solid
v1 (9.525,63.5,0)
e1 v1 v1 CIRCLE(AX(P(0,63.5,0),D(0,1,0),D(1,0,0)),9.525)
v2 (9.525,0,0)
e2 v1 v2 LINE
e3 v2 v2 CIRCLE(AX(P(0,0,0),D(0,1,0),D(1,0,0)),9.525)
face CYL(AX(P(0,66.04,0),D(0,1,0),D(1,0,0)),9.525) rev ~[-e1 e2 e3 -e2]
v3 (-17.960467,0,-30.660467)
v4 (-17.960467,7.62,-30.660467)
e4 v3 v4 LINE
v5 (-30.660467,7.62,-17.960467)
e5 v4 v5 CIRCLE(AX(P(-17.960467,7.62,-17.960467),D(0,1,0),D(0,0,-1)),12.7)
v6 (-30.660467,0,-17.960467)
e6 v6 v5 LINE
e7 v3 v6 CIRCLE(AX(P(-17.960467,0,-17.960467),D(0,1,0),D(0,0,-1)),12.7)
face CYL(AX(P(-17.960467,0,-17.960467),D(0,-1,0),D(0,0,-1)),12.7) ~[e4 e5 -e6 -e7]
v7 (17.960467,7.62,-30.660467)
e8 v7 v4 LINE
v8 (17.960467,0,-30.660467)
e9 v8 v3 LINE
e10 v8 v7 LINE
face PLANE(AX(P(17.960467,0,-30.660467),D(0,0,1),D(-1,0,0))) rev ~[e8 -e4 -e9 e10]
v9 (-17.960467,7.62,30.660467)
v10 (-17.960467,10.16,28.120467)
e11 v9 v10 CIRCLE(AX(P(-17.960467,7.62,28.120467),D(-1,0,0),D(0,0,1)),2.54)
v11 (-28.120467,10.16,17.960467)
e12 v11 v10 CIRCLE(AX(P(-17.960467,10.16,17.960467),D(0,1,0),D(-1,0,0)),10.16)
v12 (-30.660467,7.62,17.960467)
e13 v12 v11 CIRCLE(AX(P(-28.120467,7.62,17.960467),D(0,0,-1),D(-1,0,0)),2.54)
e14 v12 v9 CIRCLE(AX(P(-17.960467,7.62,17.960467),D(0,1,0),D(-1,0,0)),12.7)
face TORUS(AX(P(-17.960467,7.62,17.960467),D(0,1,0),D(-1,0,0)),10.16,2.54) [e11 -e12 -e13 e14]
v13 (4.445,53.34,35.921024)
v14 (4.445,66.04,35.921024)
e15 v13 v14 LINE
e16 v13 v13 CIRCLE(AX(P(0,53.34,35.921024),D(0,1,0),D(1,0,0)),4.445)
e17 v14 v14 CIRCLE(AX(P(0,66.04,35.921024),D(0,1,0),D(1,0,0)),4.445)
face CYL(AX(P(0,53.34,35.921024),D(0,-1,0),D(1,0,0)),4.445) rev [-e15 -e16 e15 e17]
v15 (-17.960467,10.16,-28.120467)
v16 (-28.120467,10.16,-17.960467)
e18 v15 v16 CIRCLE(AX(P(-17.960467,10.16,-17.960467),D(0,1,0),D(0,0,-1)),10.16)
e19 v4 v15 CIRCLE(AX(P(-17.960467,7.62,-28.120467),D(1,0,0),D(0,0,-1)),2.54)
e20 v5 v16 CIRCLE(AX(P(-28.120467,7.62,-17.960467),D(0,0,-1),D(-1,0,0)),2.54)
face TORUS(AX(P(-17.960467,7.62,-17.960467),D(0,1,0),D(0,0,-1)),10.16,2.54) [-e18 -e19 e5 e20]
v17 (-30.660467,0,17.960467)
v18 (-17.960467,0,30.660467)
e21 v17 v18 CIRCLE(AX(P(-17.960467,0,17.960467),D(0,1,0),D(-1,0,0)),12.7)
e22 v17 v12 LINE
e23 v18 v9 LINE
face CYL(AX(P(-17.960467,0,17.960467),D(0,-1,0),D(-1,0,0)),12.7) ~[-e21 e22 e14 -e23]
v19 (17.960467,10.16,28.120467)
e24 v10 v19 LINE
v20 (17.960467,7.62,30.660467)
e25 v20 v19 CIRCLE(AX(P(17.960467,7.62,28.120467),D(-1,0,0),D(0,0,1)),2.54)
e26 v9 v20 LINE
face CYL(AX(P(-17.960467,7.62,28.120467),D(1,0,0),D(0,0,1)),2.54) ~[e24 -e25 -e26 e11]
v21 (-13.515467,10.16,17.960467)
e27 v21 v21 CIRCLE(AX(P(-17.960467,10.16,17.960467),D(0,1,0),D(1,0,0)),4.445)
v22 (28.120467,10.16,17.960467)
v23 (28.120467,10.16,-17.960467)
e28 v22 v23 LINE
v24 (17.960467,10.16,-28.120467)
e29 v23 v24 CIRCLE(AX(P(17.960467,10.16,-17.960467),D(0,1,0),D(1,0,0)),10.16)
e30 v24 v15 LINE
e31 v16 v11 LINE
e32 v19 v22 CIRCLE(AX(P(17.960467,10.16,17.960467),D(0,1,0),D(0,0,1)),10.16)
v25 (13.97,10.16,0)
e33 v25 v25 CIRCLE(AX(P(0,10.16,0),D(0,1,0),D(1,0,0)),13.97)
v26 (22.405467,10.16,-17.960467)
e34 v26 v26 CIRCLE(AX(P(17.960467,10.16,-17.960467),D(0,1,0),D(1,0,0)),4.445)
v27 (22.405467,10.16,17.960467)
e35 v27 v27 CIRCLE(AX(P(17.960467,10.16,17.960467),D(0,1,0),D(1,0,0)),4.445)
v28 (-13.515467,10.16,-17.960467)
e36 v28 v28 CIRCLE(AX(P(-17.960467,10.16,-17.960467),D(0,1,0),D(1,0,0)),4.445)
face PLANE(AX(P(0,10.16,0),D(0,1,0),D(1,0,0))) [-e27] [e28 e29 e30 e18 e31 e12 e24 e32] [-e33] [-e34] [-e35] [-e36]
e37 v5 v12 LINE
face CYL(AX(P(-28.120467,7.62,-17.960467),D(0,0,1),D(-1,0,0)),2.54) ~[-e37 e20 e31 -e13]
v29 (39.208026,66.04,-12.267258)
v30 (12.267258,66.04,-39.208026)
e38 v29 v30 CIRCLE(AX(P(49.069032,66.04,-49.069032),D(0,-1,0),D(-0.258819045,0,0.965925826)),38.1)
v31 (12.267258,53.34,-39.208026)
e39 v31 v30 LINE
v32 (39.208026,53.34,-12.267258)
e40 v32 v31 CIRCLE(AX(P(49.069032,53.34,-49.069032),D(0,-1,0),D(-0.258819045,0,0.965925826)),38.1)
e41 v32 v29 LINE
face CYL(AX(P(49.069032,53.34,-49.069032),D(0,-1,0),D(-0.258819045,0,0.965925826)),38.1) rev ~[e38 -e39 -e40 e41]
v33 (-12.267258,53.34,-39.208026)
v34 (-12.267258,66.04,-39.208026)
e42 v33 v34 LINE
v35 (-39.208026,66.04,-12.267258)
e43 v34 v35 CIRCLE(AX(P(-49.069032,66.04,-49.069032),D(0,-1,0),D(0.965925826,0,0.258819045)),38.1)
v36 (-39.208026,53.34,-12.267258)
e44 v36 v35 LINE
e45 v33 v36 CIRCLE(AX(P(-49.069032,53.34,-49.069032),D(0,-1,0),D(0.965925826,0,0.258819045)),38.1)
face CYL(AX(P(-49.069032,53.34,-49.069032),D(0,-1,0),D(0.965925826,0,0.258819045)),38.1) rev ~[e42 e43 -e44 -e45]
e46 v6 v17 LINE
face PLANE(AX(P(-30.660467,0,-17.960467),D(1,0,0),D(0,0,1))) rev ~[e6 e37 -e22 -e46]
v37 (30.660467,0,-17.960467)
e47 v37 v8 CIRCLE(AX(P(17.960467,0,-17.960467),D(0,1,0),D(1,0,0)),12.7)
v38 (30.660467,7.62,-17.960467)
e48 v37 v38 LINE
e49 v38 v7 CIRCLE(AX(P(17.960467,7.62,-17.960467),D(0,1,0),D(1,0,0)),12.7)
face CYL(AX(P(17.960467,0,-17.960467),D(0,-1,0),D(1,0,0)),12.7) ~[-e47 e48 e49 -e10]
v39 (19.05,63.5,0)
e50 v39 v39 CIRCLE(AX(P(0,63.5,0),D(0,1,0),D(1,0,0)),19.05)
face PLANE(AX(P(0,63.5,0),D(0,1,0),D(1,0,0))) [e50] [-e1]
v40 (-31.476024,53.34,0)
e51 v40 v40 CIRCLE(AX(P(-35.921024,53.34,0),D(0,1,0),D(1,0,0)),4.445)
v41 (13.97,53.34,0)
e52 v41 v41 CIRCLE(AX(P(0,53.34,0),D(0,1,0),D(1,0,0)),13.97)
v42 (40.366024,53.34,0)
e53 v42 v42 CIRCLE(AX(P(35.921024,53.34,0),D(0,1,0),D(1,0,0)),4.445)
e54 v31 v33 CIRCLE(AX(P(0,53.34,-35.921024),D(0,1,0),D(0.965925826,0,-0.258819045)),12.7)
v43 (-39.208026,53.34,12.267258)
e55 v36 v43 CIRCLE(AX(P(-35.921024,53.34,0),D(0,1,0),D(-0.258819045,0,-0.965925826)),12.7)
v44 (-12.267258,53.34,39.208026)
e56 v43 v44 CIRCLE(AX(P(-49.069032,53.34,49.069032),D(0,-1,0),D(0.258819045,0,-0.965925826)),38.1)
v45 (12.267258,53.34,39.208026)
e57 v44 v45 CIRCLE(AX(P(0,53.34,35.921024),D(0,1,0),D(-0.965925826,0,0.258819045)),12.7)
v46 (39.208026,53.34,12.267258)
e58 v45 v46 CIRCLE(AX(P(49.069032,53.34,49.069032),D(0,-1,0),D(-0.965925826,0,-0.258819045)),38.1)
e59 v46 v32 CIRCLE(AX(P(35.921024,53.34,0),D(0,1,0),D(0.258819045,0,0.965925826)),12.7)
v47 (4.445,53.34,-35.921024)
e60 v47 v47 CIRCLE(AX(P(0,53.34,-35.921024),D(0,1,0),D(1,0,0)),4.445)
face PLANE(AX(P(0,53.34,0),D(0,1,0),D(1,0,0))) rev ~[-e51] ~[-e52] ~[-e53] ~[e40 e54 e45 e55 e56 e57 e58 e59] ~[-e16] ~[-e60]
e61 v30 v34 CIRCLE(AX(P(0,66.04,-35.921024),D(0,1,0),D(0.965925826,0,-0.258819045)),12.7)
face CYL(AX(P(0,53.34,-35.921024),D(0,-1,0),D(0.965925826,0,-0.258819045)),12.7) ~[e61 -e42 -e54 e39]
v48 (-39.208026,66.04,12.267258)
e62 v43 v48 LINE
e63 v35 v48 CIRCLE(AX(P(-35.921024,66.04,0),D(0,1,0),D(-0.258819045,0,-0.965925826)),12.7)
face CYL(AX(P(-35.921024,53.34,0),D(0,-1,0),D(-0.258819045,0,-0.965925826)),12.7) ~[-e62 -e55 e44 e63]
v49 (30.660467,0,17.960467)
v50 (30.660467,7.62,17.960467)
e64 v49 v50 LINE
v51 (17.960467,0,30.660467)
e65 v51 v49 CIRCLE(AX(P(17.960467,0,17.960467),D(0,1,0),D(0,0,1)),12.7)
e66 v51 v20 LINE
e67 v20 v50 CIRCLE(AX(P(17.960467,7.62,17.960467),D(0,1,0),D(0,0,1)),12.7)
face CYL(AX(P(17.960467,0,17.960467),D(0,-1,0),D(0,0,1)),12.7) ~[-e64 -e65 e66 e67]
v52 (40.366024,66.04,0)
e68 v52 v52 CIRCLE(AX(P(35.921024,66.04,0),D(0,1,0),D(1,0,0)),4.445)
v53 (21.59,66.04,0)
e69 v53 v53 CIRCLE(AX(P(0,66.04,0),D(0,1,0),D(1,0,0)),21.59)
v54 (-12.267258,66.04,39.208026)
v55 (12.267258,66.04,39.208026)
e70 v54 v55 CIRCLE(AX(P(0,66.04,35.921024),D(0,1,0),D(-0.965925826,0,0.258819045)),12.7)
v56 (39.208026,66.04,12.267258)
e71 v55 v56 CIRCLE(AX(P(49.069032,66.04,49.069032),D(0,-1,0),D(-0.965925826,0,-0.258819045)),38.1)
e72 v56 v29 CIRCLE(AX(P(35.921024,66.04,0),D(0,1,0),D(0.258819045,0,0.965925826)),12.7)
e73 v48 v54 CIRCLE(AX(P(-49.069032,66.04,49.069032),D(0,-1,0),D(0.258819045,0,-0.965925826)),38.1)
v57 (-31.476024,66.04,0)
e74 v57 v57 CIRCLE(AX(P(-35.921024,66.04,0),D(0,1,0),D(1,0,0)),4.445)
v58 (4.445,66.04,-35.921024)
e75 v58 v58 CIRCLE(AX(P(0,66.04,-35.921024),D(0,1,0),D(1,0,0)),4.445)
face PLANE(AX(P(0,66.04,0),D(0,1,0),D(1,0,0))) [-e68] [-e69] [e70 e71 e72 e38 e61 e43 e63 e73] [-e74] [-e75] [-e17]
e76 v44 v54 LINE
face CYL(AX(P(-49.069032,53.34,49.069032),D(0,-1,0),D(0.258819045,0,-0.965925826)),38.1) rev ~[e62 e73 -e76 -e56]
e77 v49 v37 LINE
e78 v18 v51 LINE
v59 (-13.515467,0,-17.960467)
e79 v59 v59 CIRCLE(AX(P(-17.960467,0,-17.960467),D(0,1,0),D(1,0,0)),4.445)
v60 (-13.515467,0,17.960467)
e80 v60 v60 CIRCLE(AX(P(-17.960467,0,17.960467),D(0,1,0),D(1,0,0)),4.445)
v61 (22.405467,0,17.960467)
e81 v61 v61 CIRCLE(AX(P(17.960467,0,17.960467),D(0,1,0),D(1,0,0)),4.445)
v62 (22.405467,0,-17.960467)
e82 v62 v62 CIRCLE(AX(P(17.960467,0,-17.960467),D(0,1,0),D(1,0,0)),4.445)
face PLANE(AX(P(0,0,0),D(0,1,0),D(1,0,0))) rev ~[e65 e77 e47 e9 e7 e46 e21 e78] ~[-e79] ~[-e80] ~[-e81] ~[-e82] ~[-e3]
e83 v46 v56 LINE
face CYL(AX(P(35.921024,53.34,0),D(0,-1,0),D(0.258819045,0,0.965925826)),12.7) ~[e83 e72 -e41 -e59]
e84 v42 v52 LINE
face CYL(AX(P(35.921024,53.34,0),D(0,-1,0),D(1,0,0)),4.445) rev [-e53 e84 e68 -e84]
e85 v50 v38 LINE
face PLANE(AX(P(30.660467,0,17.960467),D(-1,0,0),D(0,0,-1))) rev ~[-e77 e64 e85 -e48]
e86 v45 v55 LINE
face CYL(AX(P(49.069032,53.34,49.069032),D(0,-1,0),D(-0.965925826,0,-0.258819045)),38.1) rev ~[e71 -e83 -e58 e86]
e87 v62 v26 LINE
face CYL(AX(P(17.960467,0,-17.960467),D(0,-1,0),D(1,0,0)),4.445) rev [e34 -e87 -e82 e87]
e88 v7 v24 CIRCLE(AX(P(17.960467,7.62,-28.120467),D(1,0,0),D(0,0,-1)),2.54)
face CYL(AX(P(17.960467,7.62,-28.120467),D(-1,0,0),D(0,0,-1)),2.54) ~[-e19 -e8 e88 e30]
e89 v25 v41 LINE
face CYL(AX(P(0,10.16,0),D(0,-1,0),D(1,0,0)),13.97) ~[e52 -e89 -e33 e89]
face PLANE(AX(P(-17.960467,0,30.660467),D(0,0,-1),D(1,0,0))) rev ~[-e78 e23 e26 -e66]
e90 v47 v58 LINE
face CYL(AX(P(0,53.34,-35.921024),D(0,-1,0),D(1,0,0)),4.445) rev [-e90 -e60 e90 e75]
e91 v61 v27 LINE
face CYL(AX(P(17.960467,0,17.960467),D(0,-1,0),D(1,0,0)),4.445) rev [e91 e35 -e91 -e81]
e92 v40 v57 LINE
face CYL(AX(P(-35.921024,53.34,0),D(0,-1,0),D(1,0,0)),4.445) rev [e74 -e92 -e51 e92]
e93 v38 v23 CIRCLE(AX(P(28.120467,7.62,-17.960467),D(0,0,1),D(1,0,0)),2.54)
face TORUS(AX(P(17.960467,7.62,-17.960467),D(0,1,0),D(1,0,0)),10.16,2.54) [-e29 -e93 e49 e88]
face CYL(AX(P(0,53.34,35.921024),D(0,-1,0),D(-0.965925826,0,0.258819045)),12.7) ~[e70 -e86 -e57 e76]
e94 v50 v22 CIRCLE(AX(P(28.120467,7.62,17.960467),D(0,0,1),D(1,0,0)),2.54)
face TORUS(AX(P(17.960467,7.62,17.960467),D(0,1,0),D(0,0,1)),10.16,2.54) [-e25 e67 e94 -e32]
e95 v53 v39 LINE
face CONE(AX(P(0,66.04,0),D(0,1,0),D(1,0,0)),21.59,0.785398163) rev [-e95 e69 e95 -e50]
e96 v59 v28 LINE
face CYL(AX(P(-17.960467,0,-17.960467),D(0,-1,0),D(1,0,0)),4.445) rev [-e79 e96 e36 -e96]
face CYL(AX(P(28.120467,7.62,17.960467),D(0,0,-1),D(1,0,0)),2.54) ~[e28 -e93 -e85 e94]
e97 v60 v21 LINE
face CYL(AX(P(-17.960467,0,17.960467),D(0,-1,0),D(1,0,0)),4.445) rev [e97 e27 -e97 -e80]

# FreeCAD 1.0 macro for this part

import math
import FreeCAD as App
import Part
import Sketcher

V = App.Vector
Q = App.Units.Quantity


def edges_at(feature, points):
    """Names of the edges that pass closest to the given points."""
    edges = feature.Shape.Edges
    near = lambda p: min(range(len(edges)), key=lambda i: edges[i].distToShape(Part.Vertex(*p))[0])
    return sorted({f"Edge{near(p) + 1}" for p in points})

doc = App.newDocument("Part")
body = doc.addObject("PartDesign::Body", "Body")

# Sketch on XZ plane
sketch1 = body.newObject("Sketcher::SketchObject", "Sketch")
sketch1.AttachmentSupport = (doc.getObject("XZ_Plane"), [""])
sketch1.MapMode = "FlatFace"
sketch1.addGeometry([
    Part.LineSegment(V(-18, 30.7, 0), V(18, 30.7, 0)),  # 0
    Part.ArcOfCircle(Part.Circle(V(18, 18, 0), V(0, 0, 1), 12.7), math.radians(0), math.radians(90)),  # 1
    Part.LineSegment(V(30.7, 18, 0), V(30.7, -18, 0)),  # 2
    Part.ArcOfCircle(Part.Circle(V(18, -18, 0), V(0, 0, 1), 12.7), math.radians(-90), math.radians(0)),  # 3
    Part.LineSegment(V(18, -30.7, 0), V(-18, -30.7, 0)),  # 4
    Part.ArcOfCircle(Part.Circle(V(-18, -18, 0), V(0, 0, 1), 12.7), math.radians(180), math.radians(270)),  # 5
    Part.LineSegment(V(-30.7, -18, 0), V(-30.7, 18, 0)),  # 6
    Part.ArcOfCircle(Part.Circle(V(-18, 18, 0), V(0, 0, 1), 12.7), math.radians(90), math.radians(180)),  # 7
    Part.Circle(V(-18, 18, 0), V(0, 0, 1), 4.4),  # 8
    Part.Circle(V(18, 18, 0), V(0, 0, 1), 4.4),  # 9
    Part.Circle(V(-18, -18, 0), V(0, 0, 1), 4.4),  # 10
    Part.Circle(V(18, -18, 0), V(0, 0, 1), 4.4),  # 11
], False)
sketch1.addConstraint([
    Sketcher.Constraint("Tangent", 0, 2, 1, 2),
    Sketcher.Constraint("Tangent", 1, 1, 2, 1),
    Sketcher.Constraint("Tangent", 2, 2, 3, 2),
    Sketcher.Constraint("Tangent", 3, 1, 4, 1),
    Sketcher.Constraint("Tangent", 4, 2, 5, 2),
    Sketcher.Constraint("Tangent", 5, 1, 6, 1),
    Sketcher.Constraint("Tangent", 6, 2, 7, 2),
    Sketcher.Constraint("Tangent", 7, 1, 0, 1),
    Sketcher.Constraint("Horizontal", 0),
    Sketcher.Constraint("Vertical", 2),
    Sketcher.Constraint("Horizontal", 4),
    Sketcher.Constraint("Vertical", 6),
    Sketcher.Constraint("Coincident", 8, 3, 7, 3),
    Sketcher.Constraint("Coincident", 9, 3, 1, 3),
    Sketcher.Constraint("Coincident", 10, 3, 5, 3),
    Sketcher.Constraint("Coincident", 11, 3, 3, 3),
    Sketcher.Constraint("Equal", 1, 3),
    Sketcher.Constraint("Equal", 3, 5),
    Sketcher.Constraint("Equal", 5, 7),
    Sketcher.Constraint("Equal", 8, 9),
    Sketcher.Constraint("Equal", 9, 10),
    Sketcher.Constraint("Equal", 10, 11),
    Sketcher.Constraint("Symmetric", 1, 3, 5, 3, -1, 1),
    Sketcher.Constraint("Equal", 4, 2),
    Sketcher.Constraint("Radius", 1, Q("0.5 in")),
    Sketcher.Constraint("Diameter", 8, Q("0.35 in")),
    Sketcher.Constraint("DistanceX", 0, 1, 0, 2, Q("35.920934 mm")),
])
pad1 = body.newObject("PartDesign::Pad", "Pad")
pad1.Profile = sketch1
pad1.Length = Q("0.4 in")
pad1.Reversed = True
doc.recompute()

fillet = body.newObject("PartDesign::Fillet", "Fillet")
fillet.Base = (pad1, edges_at(pad1, [
    (26.941, 10.16, 26.941),
    (30.66, 10.16, 0),
    (26.941, 10.16, -26.941),
    (0, 10.16, -30.66),
    (-26.941, 10.16, -26.941),
    (-30.66, 10.16, 0),
    (-26.941, 10.16, 26.941),
    (0, 10.16, 30.66),
]))
fillet.Radius = Q("0.1 in")

# Sketch on XZ plane
sketch2 = body.newObject("Sketcher::SketchObject", "Sketch001")
sketch2.AttachmentSupport = (doc.getObject("XZ_Plane"), [""])
sketch2.MapMode = "FlatFace"
sketch2.AttachmentOffset = App.Placement(V(0, 0, -0.4 * 25.4), App.Rotation())
sketch2.addGeometry(Part.Circle(V(0, 0, 0), V(0, 0, 1), 14), False)
sketch2.addConstraint([
    Sketcher.Constraint("Coincident", 0, 3, -1, 1),
    Sketcher.Constraint("Diameter", 0, Q("1.1 in")),
])
pad2 = body.newObject("PartDesign::Pad", "Pad001")
pad2.Profile = sketch2
pad2.Length = Q("1.7 in")
pad2.Reversed = True

# Sketch on XZ plane
sketch3 = body.newObject("Sketcher::SketchObject", "Sketch002")
sketch3.AttachmentSupport = (doc.getObject("XZ_Plane"), [""])
sketch3.MapMode = "FlatFace"
sketch3.AttachmentOffset = App.Placement(V(0, 0, -2.1 * 25.4), App.Rotation())
sketch3.addGeometry([
    Part.ArcOfCircle(Part.Circle(V(-35.9, 0, 0), V(0, 0, 1), 12.7), math.radians(105), math.radians(255)),  # 0
    Part.ArcOfCircle(Part.Circle(V(-49.1, 49.1, 0), V(0, 0, 1), 38.1), math.radians(-75), math.radians(-15)),  # 1
    Part.ArcOfCircle(Part.Circle(V(0, 35.9, 0), V(0, 0, 1), 12.7), math.radians(15), math.radians(165)),  # 2
    Part.ArcOfCircle(Part.Circle(V(49.1, 49.1, 0), V(0, 0, 1), 38.1), math.radians(-165), math.radians(-105)),  # 3
    Part.ArcOfCircle(Part.Circle(V(35.9, 0, 0), V(0, 0, 1), 12.7), math.radians(-75), math.radians(75)),  # 4
    Part.ArcOfCircle(Part.Circle(V(49.1, -49.1, 0), V(0, 0, 1), 38.1), math.radians(105), math.radians(165)),  # 5
    Part.ArcOfCircle(Part.Circle(V(0, -35.9, 0), V(0, 0, 1), 12.7), math.radians(-165), math.radians(-15)),  # 6
    Part.ArcOfCircle(Part.Circle(V(-49.1, -49.1, 0), V(0, 0, 1), 38.1), math.radians(15), math.radians(75)),  # 7
    Part.Circle(V(0, 35.9, 0), V(0, 0, 1), 4.4),  # 8
    Part.Circle(V(-35.9, 0, 0), V(0, 0, 1), 4.4),  # 9
    Part.Circle(V(35.9, 0, 0), V(0, 0, 1), 4.4),  # 10
    Part.Circle(V(0, -35.9, 0), V(0, 0, 1), 4.4),  # 11
], False)
sketch3.addConstraint([
    Sketcher.Constraint("Tangent", 0, 1, 1, 1),
    Sketcher.Constraint("Tangent", 1, 2, 2, 2),
    Sketcher.Constraint("Tangent", 2, 1, 3, 1),
    Sketcher.Constraint("Tangent", 3, 2, 4, 2),
    Sketcher.Constraint("Tangent", 4, 1, 5, 1),
    Sketcher.Constraint("Tangent", 5, 2, 6, 2),
    Sketcher.Constraint("Tangent", 6, 1, 7, 1),
    Sketcher.Constraint("Tangent", 7, 2, 0, 2),
    Sketcher.Constraint("Coincident", 8, 3, 2, 3),
    Sketcher.Constraint("Coincident", 9, 3, 0, 3),
    Sketcher.Constraint("Coincident", 10, 3, 4, 3),
    Sketcher.Constraint("Coincident", 11, 3, 6, 3),
    Sketcher.Constraint("Equal", 0, 2),
    Sketcher.Constraint("Equal", 1, 3),
    Sketcher.Constraint("Equal", 2, 4),
    Sketcher.Constraint("Equal", 3, 5),
    Sketcher.Constraint("Equal", 4, 6),
    Sketcher.Constraint("Equal", 5, 7),
    Sketcher.Constraint("Equal", 8, 9),
    Sketcher.Constraint("Equal", 9, 10),
    Sketcher.Constraint("Equal", 10, 11),
    Sketcher.Constraint("Symmetric", 0, 3, 4, 3, -1, 1),
    Sketcher.Constraint("Symmetric", 2, 3, 6, 3, -1, 1),
    Sketcher.Constraint("Symmetric", 1, 3, 3, 3, -2),
    Sketcher.Constraint("Radius", 0, Q("0.5 in")),
    Sketcher.Constraint("Radius", 1, Q("1.5 in")),
    Sketcher.Constraint("Diameter", 8, Q("0.35 in")),
    Sketcher.Constraint("DistanceX", 0, 1, 0, 3, Q("3.287002 mm")),
    Sketcher.Constraint("DistanceY", 2, 3, 1, 2, Q("3.287002 mm")),
])
pad3 = body.newObject("PartDesign::Pad", "Pad002")
pad3.Profile = sketch3
pad3.Length = Q("0.5 in")
pad3.Reversed = True

# Sketch on XZ plane
sketch4 = body.newObject("Sketcher::SketchObject", "Sketch003")
sketch4.AttachmentSupport = (doc.getObject("XZ_Plane"), [""])
sketch4.MapMode = "FlatFace"
sketch4.AttachmentOffset = App.Placement(V(0, 0, -2.6 * 25.4), App.Rotation())
sketch4.addGeometry(Part.Circle(V(0, 0, 0), V(0, 0, 1), 10), False)
sketch4.addConstraint([
    Sketcher.Constraint("Coincident", 0, 3, -1, 1),
    Sketcher.Constraint("Diameter", 0, Q("0.75 in")),
])
pocket1 = body.newObject("PartDesign::Pocket", "Pocket")
pocket1.Profile = sketch4
pocket1.Type = "ThroughAll"
pocket1.Reversed = True

# Sketch on XY plane
sketch5 = body.newObject("Sketcher::SketchObject", "Sketch004")
sketch5.AttachmentSupport = (doc.getObject("XY_Plane"), [""])
sketch5.MapMode = "FlatFace"
sketch5.addGeometry([
    Part.LineSegment(V(19.1, 63.5, 0), V(21.6, 66, 0)),
    Part.LineSegment(V(21.6, 66, 0), V(0, 66, 0)),
    Part.LineSegment(V(0, 66, 0), V(0, 63.5, 0)),
    Part.LineSegment(V(0, 63.5, 0), V(19.1, 63.5, 0)),
], False)
sketch5.addConstraint([
    Sketcher.Constraint("Coincident", 0, 2, 1, 1),
    Sketcher.Constraint("Coincident", 1, 2, 2, 1),
    Sketcher.Constraint("Coincident", 2, 2, 3, 1),
    Sketcher.Constraint("Coincident", 3, 2, 0, 1),
    Sketcher.Constraint("Horizontal", 1),
    Sketcher.Constraint("Vertical", 2),
    Sketcher.Constraint("Horizontal", 3),
    Sketcher.Constraint("PointOnObject", 1, 2, -2),
    Sketcher.Constraint("DistanceY", 2, 2, 2, 1, Q("0.1 in")),
    Sketcher.Constraint("Angle", 0, Q("45 deg")),
    Sketcher.Constraint("DistanceX", 1, 2, 1, 1, Q("0.85 in")),
    Sketcher.Constraint("DistanceY", -1, 1, 0, 2, Q("2.6 in")),
])
groove = body.newObject("PartDesign::Groove", "Groove")
groove.Profile = sketch5
groove.ReferenceAxis = (sketch5, ["V_Axis"])
groove.Angle = 360

doc.recompute()
